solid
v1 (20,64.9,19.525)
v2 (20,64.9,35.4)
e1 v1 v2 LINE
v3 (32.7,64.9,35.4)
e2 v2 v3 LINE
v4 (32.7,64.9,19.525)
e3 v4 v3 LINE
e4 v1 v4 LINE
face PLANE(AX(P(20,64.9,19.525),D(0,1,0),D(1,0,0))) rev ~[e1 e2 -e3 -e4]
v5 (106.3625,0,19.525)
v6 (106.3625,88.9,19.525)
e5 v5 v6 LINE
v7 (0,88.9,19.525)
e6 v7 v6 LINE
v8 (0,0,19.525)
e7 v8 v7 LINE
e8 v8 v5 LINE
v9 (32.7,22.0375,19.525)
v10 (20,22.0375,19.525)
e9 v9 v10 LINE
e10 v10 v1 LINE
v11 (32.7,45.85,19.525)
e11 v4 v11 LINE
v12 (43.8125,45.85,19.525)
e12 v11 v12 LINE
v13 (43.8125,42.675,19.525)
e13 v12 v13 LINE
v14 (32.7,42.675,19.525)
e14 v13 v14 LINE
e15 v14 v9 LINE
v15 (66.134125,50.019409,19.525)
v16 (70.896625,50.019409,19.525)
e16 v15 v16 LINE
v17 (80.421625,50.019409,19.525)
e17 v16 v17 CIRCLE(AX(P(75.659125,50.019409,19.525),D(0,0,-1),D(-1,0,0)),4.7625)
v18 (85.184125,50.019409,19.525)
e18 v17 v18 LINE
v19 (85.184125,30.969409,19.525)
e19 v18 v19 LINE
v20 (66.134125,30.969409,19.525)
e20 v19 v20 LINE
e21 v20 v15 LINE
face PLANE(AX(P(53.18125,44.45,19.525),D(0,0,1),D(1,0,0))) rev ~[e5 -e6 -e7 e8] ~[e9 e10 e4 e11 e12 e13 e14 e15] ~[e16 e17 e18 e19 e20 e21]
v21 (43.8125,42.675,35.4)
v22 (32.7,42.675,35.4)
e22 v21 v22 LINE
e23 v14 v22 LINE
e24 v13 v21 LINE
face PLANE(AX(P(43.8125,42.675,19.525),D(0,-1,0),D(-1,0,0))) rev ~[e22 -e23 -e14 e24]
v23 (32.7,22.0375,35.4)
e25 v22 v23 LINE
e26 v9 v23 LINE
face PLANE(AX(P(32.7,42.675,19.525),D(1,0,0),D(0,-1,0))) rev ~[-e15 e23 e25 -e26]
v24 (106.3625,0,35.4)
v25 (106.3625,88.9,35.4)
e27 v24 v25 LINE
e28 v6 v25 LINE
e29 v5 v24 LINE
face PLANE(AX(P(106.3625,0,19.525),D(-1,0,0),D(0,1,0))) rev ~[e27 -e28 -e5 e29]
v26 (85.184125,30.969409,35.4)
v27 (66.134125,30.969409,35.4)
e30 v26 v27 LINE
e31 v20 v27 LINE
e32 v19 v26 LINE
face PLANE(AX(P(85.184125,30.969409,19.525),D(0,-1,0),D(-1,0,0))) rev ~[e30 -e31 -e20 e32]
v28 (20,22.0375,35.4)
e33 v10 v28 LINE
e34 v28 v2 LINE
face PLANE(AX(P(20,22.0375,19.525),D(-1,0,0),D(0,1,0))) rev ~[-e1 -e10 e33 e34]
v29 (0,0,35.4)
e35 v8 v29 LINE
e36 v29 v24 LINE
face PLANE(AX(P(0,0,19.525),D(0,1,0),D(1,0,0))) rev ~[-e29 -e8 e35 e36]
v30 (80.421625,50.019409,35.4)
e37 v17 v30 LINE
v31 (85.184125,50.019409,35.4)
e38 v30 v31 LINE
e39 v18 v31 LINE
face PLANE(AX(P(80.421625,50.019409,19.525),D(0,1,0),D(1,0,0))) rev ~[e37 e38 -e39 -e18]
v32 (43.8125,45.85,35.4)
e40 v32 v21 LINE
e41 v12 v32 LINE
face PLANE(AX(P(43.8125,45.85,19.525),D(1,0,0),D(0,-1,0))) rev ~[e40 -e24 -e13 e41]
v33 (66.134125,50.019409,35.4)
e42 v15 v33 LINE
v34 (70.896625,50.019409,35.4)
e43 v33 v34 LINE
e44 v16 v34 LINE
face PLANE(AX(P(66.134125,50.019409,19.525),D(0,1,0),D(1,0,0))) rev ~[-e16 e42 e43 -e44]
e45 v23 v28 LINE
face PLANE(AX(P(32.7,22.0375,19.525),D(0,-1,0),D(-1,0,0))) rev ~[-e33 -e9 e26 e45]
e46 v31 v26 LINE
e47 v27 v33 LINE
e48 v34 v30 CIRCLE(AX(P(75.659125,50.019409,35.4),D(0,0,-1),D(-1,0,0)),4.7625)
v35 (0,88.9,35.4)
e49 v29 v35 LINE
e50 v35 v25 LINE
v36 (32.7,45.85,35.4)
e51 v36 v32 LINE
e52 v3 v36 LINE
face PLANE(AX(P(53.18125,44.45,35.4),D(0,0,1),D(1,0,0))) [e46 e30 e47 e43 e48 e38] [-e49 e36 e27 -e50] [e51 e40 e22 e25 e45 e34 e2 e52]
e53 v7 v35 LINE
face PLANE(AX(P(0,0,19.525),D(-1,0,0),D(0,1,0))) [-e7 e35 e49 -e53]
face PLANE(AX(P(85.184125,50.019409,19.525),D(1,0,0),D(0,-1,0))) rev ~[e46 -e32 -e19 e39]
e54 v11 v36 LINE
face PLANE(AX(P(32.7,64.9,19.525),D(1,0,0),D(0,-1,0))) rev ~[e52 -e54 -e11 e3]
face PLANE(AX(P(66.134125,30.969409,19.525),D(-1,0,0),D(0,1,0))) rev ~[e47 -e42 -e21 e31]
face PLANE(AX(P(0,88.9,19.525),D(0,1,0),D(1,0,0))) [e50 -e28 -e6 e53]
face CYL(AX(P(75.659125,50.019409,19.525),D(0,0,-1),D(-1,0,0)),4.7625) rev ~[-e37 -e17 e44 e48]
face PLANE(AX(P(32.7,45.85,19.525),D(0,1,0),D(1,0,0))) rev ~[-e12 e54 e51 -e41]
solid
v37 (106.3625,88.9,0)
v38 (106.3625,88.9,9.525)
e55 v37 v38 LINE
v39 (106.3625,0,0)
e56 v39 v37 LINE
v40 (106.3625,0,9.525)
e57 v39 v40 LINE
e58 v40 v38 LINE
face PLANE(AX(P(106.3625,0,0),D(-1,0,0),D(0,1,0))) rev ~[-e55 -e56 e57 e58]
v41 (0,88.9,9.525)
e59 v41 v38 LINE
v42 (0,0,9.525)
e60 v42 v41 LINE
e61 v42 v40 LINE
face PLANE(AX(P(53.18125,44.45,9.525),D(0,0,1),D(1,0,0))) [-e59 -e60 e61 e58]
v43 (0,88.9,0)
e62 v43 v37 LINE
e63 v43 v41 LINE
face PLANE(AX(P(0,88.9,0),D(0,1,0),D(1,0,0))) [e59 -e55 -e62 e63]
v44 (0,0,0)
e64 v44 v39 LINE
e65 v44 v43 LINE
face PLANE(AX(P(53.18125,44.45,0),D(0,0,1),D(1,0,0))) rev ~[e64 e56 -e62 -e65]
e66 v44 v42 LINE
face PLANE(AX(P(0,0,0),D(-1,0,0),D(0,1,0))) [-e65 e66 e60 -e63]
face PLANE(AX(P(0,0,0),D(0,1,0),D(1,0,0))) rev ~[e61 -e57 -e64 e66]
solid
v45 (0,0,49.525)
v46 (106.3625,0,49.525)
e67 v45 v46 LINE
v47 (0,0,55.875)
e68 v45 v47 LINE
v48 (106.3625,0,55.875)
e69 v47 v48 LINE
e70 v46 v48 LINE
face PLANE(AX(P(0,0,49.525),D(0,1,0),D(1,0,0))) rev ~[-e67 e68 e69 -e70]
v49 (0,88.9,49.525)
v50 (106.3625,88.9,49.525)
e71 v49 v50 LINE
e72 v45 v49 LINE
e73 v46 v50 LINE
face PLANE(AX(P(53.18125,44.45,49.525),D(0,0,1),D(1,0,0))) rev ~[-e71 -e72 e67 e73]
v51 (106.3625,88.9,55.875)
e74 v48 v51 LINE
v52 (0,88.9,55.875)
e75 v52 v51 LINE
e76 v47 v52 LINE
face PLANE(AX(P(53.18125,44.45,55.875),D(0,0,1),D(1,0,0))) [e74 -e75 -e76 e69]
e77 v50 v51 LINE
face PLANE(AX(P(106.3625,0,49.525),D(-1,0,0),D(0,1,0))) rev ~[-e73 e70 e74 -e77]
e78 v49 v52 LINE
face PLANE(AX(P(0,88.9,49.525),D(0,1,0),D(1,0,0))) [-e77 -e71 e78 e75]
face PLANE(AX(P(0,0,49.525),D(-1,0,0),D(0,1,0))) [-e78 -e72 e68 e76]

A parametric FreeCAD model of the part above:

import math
import FreeCAD as App
import Part
import Sketcher
Q = App.Units.Quantity


def add_polygon(sketch, points):
    """Adds a closed chain of lines whose ends are joined by coincident constraints."""
    first, n = sketch.GeometryCount, len(points)
    for a, b in zip(points, points[1:] + points[:1]):
        sketch.addGeometry(Part.LineSegment(App.Vector(*a, 0), App.Vector(*b, 0)), False)
    for i in range(n):
        sketch.addConstraint(Sketcher.Constraint("Coincident", first + i, 2, first + (i + 1) % n, 1))

doc = App.newDocument("Part")
body = doc.addObject("PartDesign::Body", "Body")

# Sketch on XY plane
sketch1 = doc.addObject("Sketcher::SketchObject", "Sketch")
body.addObject(sketch1)
sketch1.AttachmentSupport = (doc.XY_Plane, [""])
sketch1.MapMode = "FlatFace"
add_polygon(sketch1, [(0, 89), (0, 0), (106, 0), (106, 89)])  # lines 0-3
sketch1.addConstraint([
    Sketcher.Constraint("Vertical", 0),
    Sketcher.Constraint("Horizontal", 1),
    Sketcher.Constraint("Vertical", 2),
    Sketcher.Constraint("Horizontal", 3),
    Sketcher.Constraint("Coincident", 0, 2, -1, 1),
    Sketcher.Constraint("DistanceY", 0, 2, 0, 1, Q("3.5 in")),
    Sketcher.Constraint("DistanceX", 1, 1, 1, 2, Q("4.1875 in")),
])
pad1 = doc.addObject("PartDesign::Pad", "Pad")
body.addObject(pad1)
pad1.Profile = sketch1
pad1.Length = Q("0.375 in")
body2 = doc.addObject("PartDesign::Body", "Body001")

# Sketch on XY plane
sketch2 = doc.addObject("Sketcher::SketchObject", "Sketch001")
body2.addObject(sketch2)
sketch2.AttachmentSupport = (doc.getObject("XY_Plane001"), [""])
sketch2.MapMode = "FlatFace"
sketch2.AttachmentOffset = App.Placement(App.Vector(0, 0, 19.525), App.Rotation())
add_polygon(sketch2, [(0, 88.9), (0, 0), (106.4, 0), (106.4, 88.9)])  # lines 0-3
sketch2.addGeometry(Part.LineSegment(App.Vector(66.1, 50, 0), App.Vector(70.9, 50, 0)), False)  # 4
sketch2.addGeometry(Part.ArcOfCircle(Part.Circle(App.Vector(75.7, 50, 0), App.Vector(0, 0, 1), 4.8), math.radians(0), math.radians(180)), False)  # 5
sketch2.addGeometry(Part.LineSegment(App.Vector(80.4, 50, 0), App.Vector(85.2, 50, 0)), False)  # 6
sketch2.addGeometry(Part.LineSegment(App.Vector(85.2, 50, 0), App.Vector(85.2, 31, 0)), False)  # 7
sketch2.addGeometry(Part.LineSegment(App.Vector(85.2, 31, 0), App.Vector(66.1, 31, 0)), False)  # 8
sketch2.addGeometry(Part.LineSegment(App.Vector(66.1, 31, 0), App.Vector(66.1, 50, 0)), False)  # 9
add_polygon(sketch2, [(32.7, 22), (20, 22), (20, 64.9), (32.7, 64.9), (32.7, 45.9), (43.8, 45.9), (43.8, 42.7), (32.7, 42.7)])  # lines 10-17
sketch2.addConstraint([
    Sketcher.Constraint("Coincident", 4, 2, 5, 2),
    Sketcher.Constraint("Coincident", 5, 1, 6, 1),
    Sketcher.Constraint("Coincident", 6, 2, 7, 1),
    Sketcher.Constraint("Coincident", 7, 2, 8, 1),
    Sketcher.Constraint("Coincident", 8, 2, 9, 1),
    Sketcher.Constraint("Coincident", 9, 2, 4, 1),
    Sketcher.Constraint("Vertical", 0),
    Sketcher.Constraint("Horizontal", 1),
    Sketcher.Constraint("Vertical", 2),
    Sketcher.Constraint("Horizontal", 3),
    Sketcher.Constraint("Horizontal", 4),
    Sketcher.Constraint("Horizontal", 6),
    Sketcher.Constraint("Vertical", 7),
    Sketcher.Constraint("Horizontal", 8),
    Sketcher.Constraint("Vertical", 9),
    Sketcher.Constraint("Horizontal", 10),
    Sketcher.Constraint("Vertical", 11),
    Sketcher.Constraint("Horizontal", 12),
    Sketcher.Constraint("Vertical", 13),
    Sketcher.Constraint("Horizontal", 14),
    Sketcher.Constraint("Vertical", 15),
    Sketcher.Constraint("Horizontal", 16),
    Sketcher.Constraint("Vertical", 17),
    Sketcher.Constraint("Coincident", 0, 2, -1, 1),
    Sketcher.Constraint("Horizontal", 5, 3, 4, 2),
    Sketcher.Constraint("Horizontal", 4, 2, 5, 1),
    Sketcher.Constraint("Vertical", 13, 2, 16, 2),
    Sketcher.Constraint("Equal", 4, 6),
    Sketcher.Constraint("Equal", 8, 7),
    Sketcher.Constraint("Equal", 9, 13),
    Sketcher.Constraint("DistanceX", 10, 2, 10, 1, Q("0.5 in")),
    Sketcher.Constraint("DistanceY", 0, 2, 0, 1, Q("3.5 in")),
    Sketcher.Constraint("Radius", 5, Q("0.1875 in")),
    Sketcher.Constraint("DistanceX", 8, 2, 8, 1, Q("0.75 in")),
    Sketcher.Constraint("DistanceX", 1, 1, 1, 2, Q("4.1875 in")),
    Sketcher.Constraint("DistanceX", 14, 1, 14, 2, Q("0.4375 in")),
    Sketcher.Constraint("DistanceY", 11, 1, 11, 2, Q("1.6875 in")),
    Sketcher.Constraint("DistanceY", 15, 2, 15, 1, Q("0.125 in")),
    Sketcher.Constraint("DistanceX", -1, 1, 10, 2, 20.0),
    Sketcher.Constraint("DistanceY", -1, 1, 10, 2, 22.0375),
    Sketcher.Constraint("DistanceY", -1, 1, 5, 3, 50.019409),
    Sketcher.Constraint("DistanceX", -1, 1, 5, 3, 75.659125),
])
pad2 = doc.addObject("PartDesign::Pad", "Pad001")
body2.addObject(pad2)
pad2.Profile = sketch2
pad2.Length = Q("0.625 in")
body3 = doc.addObject("PartDesign::Body", "Body002")

# Sketch on XY plane
sketch3 = doc.addObject("Sketcher::SketchObject", "Sketch002")
body3.addObject(sketch3)
sketch3.AttachmentSupport = (doc.getObject("XY_Plane002"), [""])
sketch3.MapMode = "FlatFace"
sketch3.AttachmentOffset = App.Placement(App.Vector(0, 0, 49.525), App.Rotation())
add_polygon(sketch3, [(0, 89), (0, 0), (106, 0), (106, 89)])  # lines 0-3
sketch3.addConstraint([
    Sketcher.Constraint("Vertical", 0),
    Sketcher.Constraint("Horizontal", 1),
    Sketcher.Constraint("Vertical", 2),
    Sketcher.Constraint("Horizontal", 3),
    Sketcher.Constraint("Coincident", 0, 2, -1, 1),
    Sketcher.Constraint("DistanceY", 0, 2, 0, 1, Q("3.5 in")),
    Sketcher.Constraint("DistanceX", 1, 1, 1, 2, Q("4.1875 in")),
])
pad3 = doc.addObject("PartDesign::Pad", "Pad002")
body3.addObject(pad3)
pad3.Profile = sketch3
pad3.Length = Q("0.25 in")

doc.recompute()
